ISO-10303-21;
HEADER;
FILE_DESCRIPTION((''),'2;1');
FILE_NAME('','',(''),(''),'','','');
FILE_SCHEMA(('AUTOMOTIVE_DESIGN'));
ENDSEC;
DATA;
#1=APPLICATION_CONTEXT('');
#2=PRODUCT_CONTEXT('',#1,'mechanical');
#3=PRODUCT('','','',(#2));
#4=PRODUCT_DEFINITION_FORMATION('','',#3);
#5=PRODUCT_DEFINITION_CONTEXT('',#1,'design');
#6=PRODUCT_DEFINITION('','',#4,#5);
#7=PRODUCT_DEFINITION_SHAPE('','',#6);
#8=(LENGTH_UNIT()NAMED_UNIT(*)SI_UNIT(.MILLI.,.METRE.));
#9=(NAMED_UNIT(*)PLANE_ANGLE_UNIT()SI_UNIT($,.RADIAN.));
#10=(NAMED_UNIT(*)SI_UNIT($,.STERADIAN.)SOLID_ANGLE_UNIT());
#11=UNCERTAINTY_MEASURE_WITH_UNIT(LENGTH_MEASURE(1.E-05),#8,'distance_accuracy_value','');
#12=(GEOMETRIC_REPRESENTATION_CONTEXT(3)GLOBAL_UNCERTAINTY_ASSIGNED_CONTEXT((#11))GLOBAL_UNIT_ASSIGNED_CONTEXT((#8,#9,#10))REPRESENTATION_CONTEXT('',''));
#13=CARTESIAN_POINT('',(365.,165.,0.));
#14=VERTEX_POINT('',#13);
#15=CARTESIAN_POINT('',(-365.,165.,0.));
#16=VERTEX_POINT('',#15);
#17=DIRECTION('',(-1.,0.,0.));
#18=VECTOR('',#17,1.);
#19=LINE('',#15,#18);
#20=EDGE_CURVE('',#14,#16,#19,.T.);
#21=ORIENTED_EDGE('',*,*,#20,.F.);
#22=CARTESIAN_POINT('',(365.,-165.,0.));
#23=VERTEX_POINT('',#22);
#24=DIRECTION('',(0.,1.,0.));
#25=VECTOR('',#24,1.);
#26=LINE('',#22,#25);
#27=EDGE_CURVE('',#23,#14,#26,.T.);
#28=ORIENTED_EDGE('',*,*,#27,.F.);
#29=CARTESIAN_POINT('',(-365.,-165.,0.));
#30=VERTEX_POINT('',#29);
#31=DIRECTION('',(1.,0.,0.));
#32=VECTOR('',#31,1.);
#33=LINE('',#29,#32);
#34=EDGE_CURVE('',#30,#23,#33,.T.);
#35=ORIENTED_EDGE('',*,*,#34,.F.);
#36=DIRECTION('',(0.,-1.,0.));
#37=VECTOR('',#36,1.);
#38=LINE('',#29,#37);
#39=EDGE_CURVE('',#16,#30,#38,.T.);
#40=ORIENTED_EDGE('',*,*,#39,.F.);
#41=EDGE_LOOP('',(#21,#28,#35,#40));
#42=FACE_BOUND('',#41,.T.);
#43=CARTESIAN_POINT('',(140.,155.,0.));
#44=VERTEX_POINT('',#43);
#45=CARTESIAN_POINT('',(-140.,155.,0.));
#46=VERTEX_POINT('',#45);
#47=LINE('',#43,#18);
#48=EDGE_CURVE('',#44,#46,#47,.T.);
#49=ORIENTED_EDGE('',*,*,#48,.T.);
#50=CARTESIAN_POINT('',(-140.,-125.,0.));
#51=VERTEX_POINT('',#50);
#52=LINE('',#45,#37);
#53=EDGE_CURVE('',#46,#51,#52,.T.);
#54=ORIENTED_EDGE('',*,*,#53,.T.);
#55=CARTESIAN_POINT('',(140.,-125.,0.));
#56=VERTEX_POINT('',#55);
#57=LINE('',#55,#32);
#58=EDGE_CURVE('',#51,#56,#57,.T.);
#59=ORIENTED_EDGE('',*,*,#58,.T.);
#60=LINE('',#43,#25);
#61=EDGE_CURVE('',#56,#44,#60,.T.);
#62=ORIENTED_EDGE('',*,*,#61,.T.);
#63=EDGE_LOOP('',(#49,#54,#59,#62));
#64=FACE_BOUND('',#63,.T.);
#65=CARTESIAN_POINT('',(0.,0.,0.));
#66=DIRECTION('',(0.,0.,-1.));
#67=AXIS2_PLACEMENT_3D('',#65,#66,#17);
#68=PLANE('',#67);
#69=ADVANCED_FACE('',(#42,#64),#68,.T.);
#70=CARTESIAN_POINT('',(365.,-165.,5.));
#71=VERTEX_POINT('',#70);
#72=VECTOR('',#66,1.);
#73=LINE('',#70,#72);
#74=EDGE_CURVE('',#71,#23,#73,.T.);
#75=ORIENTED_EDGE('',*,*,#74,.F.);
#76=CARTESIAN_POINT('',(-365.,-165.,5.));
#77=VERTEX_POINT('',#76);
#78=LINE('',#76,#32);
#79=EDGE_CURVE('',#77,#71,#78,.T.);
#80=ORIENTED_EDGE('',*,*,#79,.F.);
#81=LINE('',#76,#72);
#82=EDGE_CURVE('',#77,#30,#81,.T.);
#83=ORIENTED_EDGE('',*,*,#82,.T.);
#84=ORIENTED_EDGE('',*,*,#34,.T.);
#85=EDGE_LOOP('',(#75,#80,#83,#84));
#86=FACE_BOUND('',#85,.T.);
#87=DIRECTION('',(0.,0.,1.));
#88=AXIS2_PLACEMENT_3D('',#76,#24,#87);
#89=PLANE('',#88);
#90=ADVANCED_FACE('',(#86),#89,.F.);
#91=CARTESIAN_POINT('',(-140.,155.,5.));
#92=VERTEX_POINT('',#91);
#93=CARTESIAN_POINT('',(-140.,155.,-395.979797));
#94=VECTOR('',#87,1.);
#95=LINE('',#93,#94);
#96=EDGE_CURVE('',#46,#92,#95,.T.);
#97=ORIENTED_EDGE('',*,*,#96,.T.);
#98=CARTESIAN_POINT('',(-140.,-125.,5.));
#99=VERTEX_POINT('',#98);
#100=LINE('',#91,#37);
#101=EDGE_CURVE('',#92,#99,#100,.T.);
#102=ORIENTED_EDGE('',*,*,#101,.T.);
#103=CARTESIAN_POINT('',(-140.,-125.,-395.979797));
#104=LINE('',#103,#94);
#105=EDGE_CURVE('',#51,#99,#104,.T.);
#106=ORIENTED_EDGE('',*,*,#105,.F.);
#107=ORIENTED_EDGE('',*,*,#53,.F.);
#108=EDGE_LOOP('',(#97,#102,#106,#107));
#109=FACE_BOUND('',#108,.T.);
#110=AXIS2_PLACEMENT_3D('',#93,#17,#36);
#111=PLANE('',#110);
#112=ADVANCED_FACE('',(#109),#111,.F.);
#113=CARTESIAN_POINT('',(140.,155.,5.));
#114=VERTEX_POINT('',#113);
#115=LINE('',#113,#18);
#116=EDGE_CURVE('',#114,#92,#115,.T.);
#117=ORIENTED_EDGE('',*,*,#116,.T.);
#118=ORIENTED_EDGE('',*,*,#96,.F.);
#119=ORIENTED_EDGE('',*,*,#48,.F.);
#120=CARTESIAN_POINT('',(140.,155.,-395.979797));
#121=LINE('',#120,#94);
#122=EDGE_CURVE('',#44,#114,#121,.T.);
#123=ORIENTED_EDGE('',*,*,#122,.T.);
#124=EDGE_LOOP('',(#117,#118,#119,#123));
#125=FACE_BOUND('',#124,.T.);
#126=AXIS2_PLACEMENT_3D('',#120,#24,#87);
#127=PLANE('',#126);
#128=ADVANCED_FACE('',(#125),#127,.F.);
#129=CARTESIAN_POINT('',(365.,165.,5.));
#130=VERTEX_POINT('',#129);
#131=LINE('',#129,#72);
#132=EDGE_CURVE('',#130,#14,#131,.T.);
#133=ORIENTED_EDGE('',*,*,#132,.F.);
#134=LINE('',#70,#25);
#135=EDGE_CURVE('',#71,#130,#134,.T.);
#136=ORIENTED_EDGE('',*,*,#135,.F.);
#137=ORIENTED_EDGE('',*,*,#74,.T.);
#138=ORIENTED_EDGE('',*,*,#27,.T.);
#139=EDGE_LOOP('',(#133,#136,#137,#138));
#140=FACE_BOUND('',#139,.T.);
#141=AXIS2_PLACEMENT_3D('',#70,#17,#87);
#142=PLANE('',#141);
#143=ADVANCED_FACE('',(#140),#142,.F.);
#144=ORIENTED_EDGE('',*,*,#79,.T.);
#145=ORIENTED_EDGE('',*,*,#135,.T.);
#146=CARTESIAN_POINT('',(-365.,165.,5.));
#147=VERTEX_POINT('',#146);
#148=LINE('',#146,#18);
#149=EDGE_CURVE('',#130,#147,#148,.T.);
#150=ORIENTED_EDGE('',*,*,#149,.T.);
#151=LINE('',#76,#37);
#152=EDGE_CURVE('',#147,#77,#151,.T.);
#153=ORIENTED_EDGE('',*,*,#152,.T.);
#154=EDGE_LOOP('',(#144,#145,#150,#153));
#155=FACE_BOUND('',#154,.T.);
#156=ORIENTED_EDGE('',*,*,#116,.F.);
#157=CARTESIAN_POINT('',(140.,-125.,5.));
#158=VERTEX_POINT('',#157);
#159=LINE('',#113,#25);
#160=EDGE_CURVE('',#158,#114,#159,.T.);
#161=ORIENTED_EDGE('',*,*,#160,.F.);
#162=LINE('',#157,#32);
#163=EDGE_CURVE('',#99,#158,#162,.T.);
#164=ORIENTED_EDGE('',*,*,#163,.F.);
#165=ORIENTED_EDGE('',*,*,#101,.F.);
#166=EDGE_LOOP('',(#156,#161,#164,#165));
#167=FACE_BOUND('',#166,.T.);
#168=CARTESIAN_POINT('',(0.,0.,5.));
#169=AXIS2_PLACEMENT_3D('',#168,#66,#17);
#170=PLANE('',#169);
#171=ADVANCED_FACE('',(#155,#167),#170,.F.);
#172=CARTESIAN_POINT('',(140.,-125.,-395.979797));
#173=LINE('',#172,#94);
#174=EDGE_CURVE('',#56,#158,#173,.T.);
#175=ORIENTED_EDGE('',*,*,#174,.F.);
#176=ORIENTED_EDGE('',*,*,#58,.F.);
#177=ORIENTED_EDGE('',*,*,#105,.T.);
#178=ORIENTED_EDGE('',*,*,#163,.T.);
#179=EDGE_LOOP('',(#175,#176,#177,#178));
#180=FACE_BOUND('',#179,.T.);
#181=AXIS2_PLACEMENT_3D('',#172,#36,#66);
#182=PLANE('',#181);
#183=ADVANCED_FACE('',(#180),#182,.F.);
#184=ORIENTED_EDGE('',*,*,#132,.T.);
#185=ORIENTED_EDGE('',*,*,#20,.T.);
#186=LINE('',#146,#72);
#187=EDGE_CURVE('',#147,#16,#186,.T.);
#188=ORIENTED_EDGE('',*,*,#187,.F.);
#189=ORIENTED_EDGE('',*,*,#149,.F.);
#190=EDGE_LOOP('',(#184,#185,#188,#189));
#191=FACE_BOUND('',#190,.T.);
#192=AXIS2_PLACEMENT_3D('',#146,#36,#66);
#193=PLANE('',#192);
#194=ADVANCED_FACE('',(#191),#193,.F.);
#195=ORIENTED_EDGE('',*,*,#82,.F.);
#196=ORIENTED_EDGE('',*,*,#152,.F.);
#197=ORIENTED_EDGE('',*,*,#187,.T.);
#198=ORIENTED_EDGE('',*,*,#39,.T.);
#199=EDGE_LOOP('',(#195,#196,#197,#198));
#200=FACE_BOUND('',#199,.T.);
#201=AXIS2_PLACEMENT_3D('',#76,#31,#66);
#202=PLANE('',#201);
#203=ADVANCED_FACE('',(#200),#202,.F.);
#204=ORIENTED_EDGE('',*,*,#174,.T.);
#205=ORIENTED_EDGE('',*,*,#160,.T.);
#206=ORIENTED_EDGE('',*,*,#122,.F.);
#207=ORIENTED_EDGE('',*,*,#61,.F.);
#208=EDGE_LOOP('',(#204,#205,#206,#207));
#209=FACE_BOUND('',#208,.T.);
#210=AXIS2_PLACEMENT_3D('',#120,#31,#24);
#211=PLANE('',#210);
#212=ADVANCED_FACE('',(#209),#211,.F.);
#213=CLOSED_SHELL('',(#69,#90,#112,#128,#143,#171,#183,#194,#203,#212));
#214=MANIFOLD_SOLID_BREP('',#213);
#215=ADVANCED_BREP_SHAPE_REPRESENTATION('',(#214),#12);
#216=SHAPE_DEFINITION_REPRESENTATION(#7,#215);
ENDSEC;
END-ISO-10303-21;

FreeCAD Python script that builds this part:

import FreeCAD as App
import Part
import Sketcher

doc = App.newDocument("Part")
params = doc.addObject("Spreadsheet::Sheet", "Params")
for row, (alias, value) in enumerate([
    ("sketch1_width", "730 mm"),
    ("sketch1_height", "330 mm"),
    ("pad1_length", "5 mm"),
    ("sketch2_width", "280 mm"),
    ("pocket1_length", "5 mm"),
], start=1):
    params.set(f"A{row}", alias)
    params.set(f"B{row}", "=" + value)
    params.setAlias(f"B{row}", alias)

body = doc.addObject("PartDesign::Body", "Body")

# Sketch on XY plane
sketch1 = body.newObject("Sketcher::SketchObject", "Sketch")
sketch1.AttachmentSupport = (doc.getObject("XY_Plane"), [""])
sketch1.MapMode = "FlatFace"
sketch1.addGeometry(Part.LineSegment(App.Vector(-365, 165, 0), App.Vector(-365, -165, 0)), False)
sketch1.addGeometry(Part.LineSegment(App.Vector(-365, -165, 0), App.Vector(365, -165, 0)), False)
sketch1.addGeometry(Part.LineSegment(App.Vector(365, -165, 0), App.Vector(365, 165, 0)), False)
sketch1.addGeometry(Part.LineSegment(App.Vector(365, 165, 0), App.Vector(-365, 165, 0)), False)
sketch1.addConstraint(Sketcher.Constraint("Coincident", 0, 2, 1, 1))
sketch1.addConstraint(Sketcher.Constraint("Coincident", 1, 2, 2, 1))
sketch1.addConstraint(Sketcher.Constraint("Coincident", 2, 2, 3, 1))
sketch1.addConstraint(Sketcher.Constraint("Coincident", 3, 2, 0, 1))
sketch1.addConstraint(Sketcher.Constraint("Vertical", 0))
sketch1.addConstraint(Sketcher.Constraint("Horizontal", 1))
sketch1.addConstraint(Sketcher.Constraint("Vertical", 2))
sketch1.addConstraint(Sketcher.Constraint("Horizontal", 3))
sketch1.addConstraint(Sketcher.Constraint("Symmetric", 0, 2, 2, 2, -1, 1))
sketch1.addConstraint(Sketcher.Constraint("DistanceX", 1, 1, 1, 2, 730.0))
sketch1.addConstraint(Sketcher.Constraint("DistanceY", 0, 2, 0, 1, 330.0))
sketch1.setExpression("Constraints[9]", "Params.sketch1_width")
sketch1.setExpression("Constraints[10]", "Params.sketch1_height")
pad1 = body.newObject("PartDesign::Pad", "Pad")
pad1.Profile = sketch1
pad1.setExpression("Length", "Params.pad1_length")

# Sketch on XY plane
sketch2 = body.newObject("Sketcher::SketchObject", "Sketch001")
sketch2.AttachmentSupport = (doc.getObject("XY_Plane"), [""])
sketch2.MapMode = "FlatFace"
sketch2.AttachmentOffset = App.Placement(App.Vector(0, 0, 5), App.Rotation())
sketch2.addGeometry(Part.LineSegment(App.Vector(-140, 155, 0), App.Vector(-140, -125, 0)), False)
sketch2.addGeometry(Part.LineSegment(App.Vector(-140, -125, 0), App.Vector(140, -125, 0)), False)
sketch2.addGeometry(Part.LineSegment(App.Vector(140, -125, 0), App.Vector(140, 155, 0)), False)
sketch2.addGeometry(Part.LineSegment(App.Vector(140, 155, 0), App.Vector(-140, 155, 0)), False)
sketch2.addConstraint(Sketcher.Constraint("Coincident", 0, 2, 1, 1))
sketch2.addConstraint(Sketcher.Constraint("Coincident", 1, 2, 2, 1))
sketch2.addConstraint(Sketcher.Constraint("Coincident", 2, 2, 3, 1))
sketch2.addConstraint(Sketcher.Constraint("Coincident", 3, 2, 0, 1))
sketch2.addConstraint(Sketcher.Constraint("Vertical", 0))
sketch2.addConstraint(Sketcher.Constraint("Horizontal", 1))
sketch2.addConstraint(Sketcher.Constraint("Vertical", 2))
sketch2.addConstraint(Sketcher.Constraint("Horizontal", 3))
sketch2.addConstraint(Sketcher.Constraint("Equal", 3, 0))
sketch2.addConstraint(Sketcher.Constraint("DistanceX", 1, 1, 1, 2, 280.0))
sketch2.addConstraint(Sketcher.Constraint("DistanceX", 0, 2, -1, 1, 140.0))
sketch2.addConstraint(Sketcher.Constraint("DistanceY", 0, 2, -1, 1, 125.0))
sketch2.setExpression("Constraints[9]", "Params.sketch2_width")
pocket1 = body.newObject("PartDesign::Pocket", "Pocket")
pocket1.Profile = sketch2
pocket1.setExpression("Length", "Params.pocket1_length")

doc.recompute()
